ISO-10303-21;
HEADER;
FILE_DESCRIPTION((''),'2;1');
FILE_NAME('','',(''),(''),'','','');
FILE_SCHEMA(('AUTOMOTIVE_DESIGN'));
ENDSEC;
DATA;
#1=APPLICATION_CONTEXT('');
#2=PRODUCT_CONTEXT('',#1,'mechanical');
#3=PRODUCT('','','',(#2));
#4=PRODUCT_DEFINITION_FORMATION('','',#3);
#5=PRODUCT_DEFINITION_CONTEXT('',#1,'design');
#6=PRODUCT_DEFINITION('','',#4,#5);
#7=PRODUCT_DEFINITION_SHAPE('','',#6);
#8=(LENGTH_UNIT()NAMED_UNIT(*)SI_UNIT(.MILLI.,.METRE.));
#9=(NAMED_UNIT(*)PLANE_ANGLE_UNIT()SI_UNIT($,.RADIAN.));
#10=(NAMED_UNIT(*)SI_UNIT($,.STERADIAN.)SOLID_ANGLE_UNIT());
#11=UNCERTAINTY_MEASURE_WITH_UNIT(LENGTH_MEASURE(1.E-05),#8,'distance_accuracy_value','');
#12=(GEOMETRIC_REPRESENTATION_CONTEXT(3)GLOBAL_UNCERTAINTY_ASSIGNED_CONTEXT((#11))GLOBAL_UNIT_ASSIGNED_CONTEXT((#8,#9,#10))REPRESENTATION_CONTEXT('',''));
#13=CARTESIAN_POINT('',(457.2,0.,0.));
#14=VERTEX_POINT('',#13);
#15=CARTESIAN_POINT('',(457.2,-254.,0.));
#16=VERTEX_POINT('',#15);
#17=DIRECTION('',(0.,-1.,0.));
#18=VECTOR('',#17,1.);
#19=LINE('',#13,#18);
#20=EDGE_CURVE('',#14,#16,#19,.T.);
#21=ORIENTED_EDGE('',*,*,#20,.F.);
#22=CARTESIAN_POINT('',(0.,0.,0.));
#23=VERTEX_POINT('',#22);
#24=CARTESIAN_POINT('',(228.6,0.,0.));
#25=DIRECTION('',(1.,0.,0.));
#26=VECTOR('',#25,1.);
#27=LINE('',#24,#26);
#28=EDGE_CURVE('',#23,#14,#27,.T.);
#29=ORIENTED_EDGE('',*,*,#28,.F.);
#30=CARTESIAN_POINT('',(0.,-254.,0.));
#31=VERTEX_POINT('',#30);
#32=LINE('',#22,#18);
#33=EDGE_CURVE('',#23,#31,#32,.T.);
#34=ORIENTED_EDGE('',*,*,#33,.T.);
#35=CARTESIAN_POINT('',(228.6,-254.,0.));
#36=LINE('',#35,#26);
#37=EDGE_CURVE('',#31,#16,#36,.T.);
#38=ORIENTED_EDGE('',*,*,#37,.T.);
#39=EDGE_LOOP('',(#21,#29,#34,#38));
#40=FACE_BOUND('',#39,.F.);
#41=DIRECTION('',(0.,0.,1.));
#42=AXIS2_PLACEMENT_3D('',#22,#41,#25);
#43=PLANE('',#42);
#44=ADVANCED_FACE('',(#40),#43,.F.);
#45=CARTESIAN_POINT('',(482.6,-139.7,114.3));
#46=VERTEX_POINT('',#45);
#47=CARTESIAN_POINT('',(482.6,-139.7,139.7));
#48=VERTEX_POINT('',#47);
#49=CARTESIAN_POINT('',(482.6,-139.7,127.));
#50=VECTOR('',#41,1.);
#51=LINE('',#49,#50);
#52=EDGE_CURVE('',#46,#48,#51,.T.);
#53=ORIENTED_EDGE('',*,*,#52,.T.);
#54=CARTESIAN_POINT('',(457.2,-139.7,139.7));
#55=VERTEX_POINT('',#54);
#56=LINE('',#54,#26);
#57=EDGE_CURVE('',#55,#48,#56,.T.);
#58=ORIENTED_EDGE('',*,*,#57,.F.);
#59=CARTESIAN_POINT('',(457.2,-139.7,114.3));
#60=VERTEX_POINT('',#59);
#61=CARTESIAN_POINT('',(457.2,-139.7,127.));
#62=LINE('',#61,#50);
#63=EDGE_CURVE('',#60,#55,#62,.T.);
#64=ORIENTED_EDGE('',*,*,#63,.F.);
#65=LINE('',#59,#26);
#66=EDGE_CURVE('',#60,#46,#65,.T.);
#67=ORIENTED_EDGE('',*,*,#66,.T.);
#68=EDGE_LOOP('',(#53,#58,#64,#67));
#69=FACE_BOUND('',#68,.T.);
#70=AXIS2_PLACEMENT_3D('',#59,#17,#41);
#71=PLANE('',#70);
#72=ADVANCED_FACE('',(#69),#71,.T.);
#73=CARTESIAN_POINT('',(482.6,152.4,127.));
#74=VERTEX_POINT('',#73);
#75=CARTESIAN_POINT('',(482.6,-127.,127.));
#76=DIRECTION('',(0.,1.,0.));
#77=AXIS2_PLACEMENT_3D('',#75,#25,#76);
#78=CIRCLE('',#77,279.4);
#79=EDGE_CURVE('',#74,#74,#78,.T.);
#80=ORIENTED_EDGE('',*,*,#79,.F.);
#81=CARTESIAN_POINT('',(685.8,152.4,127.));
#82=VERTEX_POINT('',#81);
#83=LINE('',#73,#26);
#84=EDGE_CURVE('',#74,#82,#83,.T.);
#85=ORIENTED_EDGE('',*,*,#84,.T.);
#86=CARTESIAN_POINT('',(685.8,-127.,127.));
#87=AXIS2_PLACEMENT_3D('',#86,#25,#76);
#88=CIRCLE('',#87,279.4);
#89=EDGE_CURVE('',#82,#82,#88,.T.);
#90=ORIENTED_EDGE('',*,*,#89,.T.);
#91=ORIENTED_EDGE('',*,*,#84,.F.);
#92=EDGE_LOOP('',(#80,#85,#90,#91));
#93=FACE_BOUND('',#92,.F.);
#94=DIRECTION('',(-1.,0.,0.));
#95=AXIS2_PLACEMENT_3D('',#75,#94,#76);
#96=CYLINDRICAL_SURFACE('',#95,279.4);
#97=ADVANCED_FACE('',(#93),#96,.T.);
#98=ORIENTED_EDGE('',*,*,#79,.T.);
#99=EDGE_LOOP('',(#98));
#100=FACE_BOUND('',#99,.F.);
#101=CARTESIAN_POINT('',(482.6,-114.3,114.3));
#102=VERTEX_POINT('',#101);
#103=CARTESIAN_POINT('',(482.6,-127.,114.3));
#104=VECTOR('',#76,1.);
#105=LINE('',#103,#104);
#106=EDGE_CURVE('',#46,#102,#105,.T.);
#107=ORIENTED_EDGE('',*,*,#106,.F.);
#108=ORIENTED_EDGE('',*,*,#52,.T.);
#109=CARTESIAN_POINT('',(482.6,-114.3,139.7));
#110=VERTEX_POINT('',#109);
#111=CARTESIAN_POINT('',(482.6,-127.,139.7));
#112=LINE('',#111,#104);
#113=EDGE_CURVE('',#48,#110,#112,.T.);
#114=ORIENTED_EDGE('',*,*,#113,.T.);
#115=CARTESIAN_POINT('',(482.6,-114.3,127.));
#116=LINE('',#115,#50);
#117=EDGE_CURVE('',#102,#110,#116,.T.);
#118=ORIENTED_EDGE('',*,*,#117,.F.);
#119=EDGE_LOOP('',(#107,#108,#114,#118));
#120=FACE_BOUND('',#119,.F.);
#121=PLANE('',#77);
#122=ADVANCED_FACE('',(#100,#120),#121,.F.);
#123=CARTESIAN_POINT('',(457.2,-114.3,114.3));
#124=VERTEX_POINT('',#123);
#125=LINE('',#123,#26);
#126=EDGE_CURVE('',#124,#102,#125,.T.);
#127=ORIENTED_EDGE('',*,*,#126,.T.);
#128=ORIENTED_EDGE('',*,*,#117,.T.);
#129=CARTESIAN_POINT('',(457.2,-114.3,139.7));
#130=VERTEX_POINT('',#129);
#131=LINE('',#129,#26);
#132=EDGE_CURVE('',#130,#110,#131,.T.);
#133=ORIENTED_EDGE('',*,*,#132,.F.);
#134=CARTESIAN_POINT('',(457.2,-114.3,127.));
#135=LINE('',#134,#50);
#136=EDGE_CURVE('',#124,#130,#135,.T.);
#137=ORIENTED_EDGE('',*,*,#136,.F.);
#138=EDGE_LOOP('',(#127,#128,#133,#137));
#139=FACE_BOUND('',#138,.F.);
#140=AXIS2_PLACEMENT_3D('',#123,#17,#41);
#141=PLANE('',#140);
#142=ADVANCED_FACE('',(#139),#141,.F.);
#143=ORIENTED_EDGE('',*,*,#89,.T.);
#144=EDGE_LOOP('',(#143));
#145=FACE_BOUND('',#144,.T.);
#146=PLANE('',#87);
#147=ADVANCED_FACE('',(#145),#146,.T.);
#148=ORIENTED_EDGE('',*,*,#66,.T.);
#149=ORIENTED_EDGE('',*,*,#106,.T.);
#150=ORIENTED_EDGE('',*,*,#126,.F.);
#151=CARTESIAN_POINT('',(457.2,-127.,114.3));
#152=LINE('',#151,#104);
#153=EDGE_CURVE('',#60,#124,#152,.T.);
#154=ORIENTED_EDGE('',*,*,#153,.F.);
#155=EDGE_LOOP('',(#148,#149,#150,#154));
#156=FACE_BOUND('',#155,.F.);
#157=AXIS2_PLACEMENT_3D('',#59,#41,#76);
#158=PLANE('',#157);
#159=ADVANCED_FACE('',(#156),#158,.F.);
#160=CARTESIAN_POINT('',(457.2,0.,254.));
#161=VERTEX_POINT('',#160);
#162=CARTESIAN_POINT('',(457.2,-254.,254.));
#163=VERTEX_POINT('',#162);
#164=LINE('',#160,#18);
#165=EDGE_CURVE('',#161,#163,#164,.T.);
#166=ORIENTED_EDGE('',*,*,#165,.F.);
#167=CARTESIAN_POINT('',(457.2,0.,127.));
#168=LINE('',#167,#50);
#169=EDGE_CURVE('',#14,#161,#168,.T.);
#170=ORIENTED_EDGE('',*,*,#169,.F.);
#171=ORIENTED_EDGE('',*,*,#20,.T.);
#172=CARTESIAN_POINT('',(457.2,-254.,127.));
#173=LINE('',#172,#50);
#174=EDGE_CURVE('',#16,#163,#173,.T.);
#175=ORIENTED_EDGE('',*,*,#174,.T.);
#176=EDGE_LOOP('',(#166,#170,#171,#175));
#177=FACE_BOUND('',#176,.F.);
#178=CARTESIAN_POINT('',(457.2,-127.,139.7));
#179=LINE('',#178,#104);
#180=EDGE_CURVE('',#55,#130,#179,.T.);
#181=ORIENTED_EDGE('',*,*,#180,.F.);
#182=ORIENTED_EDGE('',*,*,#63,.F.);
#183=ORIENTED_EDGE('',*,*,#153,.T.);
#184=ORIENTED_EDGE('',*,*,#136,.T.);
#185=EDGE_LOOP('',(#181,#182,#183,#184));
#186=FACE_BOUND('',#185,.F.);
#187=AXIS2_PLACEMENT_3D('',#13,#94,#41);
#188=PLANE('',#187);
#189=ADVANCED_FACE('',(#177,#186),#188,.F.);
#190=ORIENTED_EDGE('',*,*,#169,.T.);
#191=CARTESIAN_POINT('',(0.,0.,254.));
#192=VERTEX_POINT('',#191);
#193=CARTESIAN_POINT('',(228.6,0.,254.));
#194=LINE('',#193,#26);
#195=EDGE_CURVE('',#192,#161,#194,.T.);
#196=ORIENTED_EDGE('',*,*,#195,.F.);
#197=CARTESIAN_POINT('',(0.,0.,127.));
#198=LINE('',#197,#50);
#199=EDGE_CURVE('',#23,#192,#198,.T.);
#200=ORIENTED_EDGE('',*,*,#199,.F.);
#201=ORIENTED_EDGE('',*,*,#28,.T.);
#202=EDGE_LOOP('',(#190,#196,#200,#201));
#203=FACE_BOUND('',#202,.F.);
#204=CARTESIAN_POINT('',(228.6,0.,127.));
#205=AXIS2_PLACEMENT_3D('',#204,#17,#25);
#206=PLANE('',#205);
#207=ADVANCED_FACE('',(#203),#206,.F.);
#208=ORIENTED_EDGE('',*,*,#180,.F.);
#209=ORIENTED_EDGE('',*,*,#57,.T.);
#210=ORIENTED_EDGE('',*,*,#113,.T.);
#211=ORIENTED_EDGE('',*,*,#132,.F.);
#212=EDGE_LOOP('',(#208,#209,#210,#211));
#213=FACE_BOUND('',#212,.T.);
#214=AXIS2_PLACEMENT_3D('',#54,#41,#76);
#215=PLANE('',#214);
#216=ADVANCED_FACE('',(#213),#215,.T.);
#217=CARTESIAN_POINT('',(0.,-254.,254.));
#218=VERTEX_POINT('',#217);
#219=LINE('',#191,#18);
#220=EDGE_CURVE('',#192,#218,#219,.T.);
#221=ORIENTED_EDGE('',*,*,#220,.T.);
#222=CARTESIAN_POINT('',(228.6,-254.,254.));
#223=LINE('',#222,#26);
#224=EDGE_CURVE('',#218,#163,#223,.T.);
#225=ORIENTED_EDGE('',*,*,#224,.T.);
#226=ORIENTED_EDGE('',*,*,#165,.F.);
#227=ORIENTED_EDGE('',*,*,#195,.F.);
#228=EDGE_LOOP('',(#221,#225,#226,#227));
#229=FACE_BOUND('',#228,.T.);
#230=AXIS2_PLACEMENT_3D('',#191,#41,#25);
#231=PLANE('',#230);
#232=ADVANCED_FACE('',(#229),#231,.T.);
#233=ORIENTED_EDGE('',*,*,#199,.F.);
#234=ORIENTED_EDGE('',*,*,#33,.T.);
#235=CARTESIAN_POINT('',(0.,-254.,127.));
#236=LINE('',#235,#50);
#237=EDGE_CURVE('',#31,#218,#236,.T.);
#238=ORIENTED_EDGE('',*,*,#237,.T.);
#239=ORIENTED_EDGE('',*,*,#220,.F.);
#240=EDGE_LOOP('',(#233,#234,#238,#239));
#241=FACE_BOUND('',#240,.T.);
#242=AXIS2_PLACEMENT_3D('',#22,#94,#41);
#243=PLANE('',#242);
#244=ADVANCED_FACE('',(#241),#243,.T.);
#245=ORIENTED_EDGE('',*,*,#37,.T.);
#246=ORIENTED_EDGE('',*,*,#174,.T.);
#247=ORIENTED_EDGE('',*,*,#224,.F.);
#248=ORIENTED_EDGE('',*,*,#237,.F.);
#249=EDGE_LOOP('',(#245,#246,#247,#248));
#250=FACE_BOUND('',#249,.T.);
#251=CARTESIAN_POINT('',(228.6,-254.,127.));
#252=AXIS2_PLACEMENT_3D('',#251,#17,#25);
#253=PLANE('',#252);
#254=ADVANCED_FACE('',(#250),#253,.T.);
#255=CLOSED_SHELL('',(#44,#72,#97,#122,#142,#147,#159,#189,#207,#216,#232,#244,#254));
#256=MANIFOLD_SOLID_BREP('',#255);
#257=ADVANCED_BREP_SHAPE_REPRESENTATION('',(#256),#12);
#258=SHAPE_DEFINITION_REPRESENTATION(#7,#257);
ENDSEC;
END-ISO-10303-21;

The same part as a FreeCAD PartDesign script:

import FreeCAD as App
import Part
import Sketcher
from FreeCAD import Vector
Q = App.Units.Quantity

doc = App.newDocument("Part")
body = doc.addObject("PartDesign::Body", "Body")

sketch1 = doc.addObject("Sketcher::SketchObject", "Sketch")
body.addObject(sketch1)
sketch1.AttachmentSupport = (doc.XZ_Plane, [""])
sketch1.MapMode = "FlatFace"
sketch1.addGeometry([
    Part.LineSegment(Vector(0, 254, 0), Vector(0, 0, 0)),
    Part.LineSegment(Vector(0, 0, 0), Vector(457, 0, 0)),
    Part.LineSegment(Vector(457, 0, 0), Vector(457, 254, 0)),
    Part.LineSegment(Vector(457, 254, 0), Vector(0, 254, 0)),
], False)
sketch1.addConstraint([
    Sketcher.Constraint("Coincident", 0, 2, 1, 1),
    Sketcher.Constraint("Coincident", 1, 2, 2, 1),
    Sketcher.Constraint("Coincident", 2, 2, 3, 1),
    Sketcher.Constraint("Coincident", 3, 2, 0, 1),
    Sketcher.Constraint("Vertical", 0),
    Sketcher.Constraint("Horizontal", 1),
    Sketcher.Constraint("Vertical", 2),
    Sketcher.Constraint("Horizontal", 3),
    Sketcher.Constraint("Coincident", 0, 2, -1, 1),
    Sketcher.Constraint("DistanceX", 1, 1, 1, 2, Q("18 in")),
    Sketcher.Constraint("DistanceY", 0, 2, 0, 1, Q("10 in")),
])
pad1 = doc.addObject("PartDesign::Pad", "Pad")
body.addObject(pad1)
pad1.Profile = sketch1
pad1.Length = Q("10 in")

sketch2 = doc.addObject("Sketcher::SketchObject", "Sketch001")
body.addObject(sketch2)
sketch2.AttachmentSupport = (doc.YZ_Plane, [""])
sketch2.MapMode = "FlatFace"
sketch2.AttachmentOffset = App.Placement(Vector(0, 0, 18 * 25.4), App.Rotation())
sketch2.addGeometry([
    Part.LineSegment(Vector(-140, 140, 0), Vector(-140, 114, 0)),
    Part.LineSegment(Vector(-140, 114, 0), Vector(-114, 114, 0)),
    Part.LineSegment(Vector(-114, 114, 0), Vector(-114, 140, 0)),
    Part.LineSegment(Vector(-114, 140, 0), Vector(-140, 140, 0)),
], False)
sketch2.addConstraint([
    Sketcher.Constraint("Coincident", 0, 2, 1, 1),
    Sketcher.Constraint("Coincident", 1, 2, 2, 1),
    Sketcher.Constraint("Coincident", 2, 2, 3, 1),
    Sketcher.Constraint("Coincident", 3, 2, 0, 1),
    Sketcher.Constraint("Vertical", 0),
    Sketcher.Constraint("Horizontal", 1),
    Sketcher.Constraint("Vertical", 2),
    Sketcher.Constraint("Horizontal", 3),
    Sketcher.Constraint("Equal", 3, 0),
    Sketcher.Constraint("DistanceX", 1, 1, 1, 2, Q("1 in")),
    Sketcher.Constraint("DistanceX", 0, 2, -1, 1, Q("5.5 in")),
    Sketcher.Constraint("DistanceY", -1, 1, 0, 2, Q("4.5 in")),
])
pad2 = doc.addObject("PartDesign::Pad", "Pad001")
body.addObject(pad2)
pad2.Profile = sketch2
pad2.Length = Q("1 in")

sketch3 = doc.addObject("Sketcher::SketchObject", "Sketch002")
body.addObject(sketch3)
sketch3.AttachmentSupport = (doc.YZ_Plane, [""])
sketch3.MapMode = "FlatFace"
sketch3.AttachmentOffset = App.Placement(Vector(0, 0, 19 * 25.4), App.Rotation())
sketch3.addGeometry(Part.Circle(Vector(-127, 127, 0), Vector(0, 0, 1), 279), False)
sketch3.addConstraint([
    Sketcher.Constraint("Diameter", 0, Q("22 in")),
    Sketcher.Constraint("DistanceX", 0, 3, -1, 1, Q("5 in")),
    Sketcher.Constraint("DistanceY", -1, 1, 0, 3, Q("5 in")),
])
pad3 = doc.addObject("PartDesign::Pad", "Pad002")
body.addObject(pad3)
pad3.Profile = sketch3
pad3.Length = Q("8 in")

doc.recompute()
